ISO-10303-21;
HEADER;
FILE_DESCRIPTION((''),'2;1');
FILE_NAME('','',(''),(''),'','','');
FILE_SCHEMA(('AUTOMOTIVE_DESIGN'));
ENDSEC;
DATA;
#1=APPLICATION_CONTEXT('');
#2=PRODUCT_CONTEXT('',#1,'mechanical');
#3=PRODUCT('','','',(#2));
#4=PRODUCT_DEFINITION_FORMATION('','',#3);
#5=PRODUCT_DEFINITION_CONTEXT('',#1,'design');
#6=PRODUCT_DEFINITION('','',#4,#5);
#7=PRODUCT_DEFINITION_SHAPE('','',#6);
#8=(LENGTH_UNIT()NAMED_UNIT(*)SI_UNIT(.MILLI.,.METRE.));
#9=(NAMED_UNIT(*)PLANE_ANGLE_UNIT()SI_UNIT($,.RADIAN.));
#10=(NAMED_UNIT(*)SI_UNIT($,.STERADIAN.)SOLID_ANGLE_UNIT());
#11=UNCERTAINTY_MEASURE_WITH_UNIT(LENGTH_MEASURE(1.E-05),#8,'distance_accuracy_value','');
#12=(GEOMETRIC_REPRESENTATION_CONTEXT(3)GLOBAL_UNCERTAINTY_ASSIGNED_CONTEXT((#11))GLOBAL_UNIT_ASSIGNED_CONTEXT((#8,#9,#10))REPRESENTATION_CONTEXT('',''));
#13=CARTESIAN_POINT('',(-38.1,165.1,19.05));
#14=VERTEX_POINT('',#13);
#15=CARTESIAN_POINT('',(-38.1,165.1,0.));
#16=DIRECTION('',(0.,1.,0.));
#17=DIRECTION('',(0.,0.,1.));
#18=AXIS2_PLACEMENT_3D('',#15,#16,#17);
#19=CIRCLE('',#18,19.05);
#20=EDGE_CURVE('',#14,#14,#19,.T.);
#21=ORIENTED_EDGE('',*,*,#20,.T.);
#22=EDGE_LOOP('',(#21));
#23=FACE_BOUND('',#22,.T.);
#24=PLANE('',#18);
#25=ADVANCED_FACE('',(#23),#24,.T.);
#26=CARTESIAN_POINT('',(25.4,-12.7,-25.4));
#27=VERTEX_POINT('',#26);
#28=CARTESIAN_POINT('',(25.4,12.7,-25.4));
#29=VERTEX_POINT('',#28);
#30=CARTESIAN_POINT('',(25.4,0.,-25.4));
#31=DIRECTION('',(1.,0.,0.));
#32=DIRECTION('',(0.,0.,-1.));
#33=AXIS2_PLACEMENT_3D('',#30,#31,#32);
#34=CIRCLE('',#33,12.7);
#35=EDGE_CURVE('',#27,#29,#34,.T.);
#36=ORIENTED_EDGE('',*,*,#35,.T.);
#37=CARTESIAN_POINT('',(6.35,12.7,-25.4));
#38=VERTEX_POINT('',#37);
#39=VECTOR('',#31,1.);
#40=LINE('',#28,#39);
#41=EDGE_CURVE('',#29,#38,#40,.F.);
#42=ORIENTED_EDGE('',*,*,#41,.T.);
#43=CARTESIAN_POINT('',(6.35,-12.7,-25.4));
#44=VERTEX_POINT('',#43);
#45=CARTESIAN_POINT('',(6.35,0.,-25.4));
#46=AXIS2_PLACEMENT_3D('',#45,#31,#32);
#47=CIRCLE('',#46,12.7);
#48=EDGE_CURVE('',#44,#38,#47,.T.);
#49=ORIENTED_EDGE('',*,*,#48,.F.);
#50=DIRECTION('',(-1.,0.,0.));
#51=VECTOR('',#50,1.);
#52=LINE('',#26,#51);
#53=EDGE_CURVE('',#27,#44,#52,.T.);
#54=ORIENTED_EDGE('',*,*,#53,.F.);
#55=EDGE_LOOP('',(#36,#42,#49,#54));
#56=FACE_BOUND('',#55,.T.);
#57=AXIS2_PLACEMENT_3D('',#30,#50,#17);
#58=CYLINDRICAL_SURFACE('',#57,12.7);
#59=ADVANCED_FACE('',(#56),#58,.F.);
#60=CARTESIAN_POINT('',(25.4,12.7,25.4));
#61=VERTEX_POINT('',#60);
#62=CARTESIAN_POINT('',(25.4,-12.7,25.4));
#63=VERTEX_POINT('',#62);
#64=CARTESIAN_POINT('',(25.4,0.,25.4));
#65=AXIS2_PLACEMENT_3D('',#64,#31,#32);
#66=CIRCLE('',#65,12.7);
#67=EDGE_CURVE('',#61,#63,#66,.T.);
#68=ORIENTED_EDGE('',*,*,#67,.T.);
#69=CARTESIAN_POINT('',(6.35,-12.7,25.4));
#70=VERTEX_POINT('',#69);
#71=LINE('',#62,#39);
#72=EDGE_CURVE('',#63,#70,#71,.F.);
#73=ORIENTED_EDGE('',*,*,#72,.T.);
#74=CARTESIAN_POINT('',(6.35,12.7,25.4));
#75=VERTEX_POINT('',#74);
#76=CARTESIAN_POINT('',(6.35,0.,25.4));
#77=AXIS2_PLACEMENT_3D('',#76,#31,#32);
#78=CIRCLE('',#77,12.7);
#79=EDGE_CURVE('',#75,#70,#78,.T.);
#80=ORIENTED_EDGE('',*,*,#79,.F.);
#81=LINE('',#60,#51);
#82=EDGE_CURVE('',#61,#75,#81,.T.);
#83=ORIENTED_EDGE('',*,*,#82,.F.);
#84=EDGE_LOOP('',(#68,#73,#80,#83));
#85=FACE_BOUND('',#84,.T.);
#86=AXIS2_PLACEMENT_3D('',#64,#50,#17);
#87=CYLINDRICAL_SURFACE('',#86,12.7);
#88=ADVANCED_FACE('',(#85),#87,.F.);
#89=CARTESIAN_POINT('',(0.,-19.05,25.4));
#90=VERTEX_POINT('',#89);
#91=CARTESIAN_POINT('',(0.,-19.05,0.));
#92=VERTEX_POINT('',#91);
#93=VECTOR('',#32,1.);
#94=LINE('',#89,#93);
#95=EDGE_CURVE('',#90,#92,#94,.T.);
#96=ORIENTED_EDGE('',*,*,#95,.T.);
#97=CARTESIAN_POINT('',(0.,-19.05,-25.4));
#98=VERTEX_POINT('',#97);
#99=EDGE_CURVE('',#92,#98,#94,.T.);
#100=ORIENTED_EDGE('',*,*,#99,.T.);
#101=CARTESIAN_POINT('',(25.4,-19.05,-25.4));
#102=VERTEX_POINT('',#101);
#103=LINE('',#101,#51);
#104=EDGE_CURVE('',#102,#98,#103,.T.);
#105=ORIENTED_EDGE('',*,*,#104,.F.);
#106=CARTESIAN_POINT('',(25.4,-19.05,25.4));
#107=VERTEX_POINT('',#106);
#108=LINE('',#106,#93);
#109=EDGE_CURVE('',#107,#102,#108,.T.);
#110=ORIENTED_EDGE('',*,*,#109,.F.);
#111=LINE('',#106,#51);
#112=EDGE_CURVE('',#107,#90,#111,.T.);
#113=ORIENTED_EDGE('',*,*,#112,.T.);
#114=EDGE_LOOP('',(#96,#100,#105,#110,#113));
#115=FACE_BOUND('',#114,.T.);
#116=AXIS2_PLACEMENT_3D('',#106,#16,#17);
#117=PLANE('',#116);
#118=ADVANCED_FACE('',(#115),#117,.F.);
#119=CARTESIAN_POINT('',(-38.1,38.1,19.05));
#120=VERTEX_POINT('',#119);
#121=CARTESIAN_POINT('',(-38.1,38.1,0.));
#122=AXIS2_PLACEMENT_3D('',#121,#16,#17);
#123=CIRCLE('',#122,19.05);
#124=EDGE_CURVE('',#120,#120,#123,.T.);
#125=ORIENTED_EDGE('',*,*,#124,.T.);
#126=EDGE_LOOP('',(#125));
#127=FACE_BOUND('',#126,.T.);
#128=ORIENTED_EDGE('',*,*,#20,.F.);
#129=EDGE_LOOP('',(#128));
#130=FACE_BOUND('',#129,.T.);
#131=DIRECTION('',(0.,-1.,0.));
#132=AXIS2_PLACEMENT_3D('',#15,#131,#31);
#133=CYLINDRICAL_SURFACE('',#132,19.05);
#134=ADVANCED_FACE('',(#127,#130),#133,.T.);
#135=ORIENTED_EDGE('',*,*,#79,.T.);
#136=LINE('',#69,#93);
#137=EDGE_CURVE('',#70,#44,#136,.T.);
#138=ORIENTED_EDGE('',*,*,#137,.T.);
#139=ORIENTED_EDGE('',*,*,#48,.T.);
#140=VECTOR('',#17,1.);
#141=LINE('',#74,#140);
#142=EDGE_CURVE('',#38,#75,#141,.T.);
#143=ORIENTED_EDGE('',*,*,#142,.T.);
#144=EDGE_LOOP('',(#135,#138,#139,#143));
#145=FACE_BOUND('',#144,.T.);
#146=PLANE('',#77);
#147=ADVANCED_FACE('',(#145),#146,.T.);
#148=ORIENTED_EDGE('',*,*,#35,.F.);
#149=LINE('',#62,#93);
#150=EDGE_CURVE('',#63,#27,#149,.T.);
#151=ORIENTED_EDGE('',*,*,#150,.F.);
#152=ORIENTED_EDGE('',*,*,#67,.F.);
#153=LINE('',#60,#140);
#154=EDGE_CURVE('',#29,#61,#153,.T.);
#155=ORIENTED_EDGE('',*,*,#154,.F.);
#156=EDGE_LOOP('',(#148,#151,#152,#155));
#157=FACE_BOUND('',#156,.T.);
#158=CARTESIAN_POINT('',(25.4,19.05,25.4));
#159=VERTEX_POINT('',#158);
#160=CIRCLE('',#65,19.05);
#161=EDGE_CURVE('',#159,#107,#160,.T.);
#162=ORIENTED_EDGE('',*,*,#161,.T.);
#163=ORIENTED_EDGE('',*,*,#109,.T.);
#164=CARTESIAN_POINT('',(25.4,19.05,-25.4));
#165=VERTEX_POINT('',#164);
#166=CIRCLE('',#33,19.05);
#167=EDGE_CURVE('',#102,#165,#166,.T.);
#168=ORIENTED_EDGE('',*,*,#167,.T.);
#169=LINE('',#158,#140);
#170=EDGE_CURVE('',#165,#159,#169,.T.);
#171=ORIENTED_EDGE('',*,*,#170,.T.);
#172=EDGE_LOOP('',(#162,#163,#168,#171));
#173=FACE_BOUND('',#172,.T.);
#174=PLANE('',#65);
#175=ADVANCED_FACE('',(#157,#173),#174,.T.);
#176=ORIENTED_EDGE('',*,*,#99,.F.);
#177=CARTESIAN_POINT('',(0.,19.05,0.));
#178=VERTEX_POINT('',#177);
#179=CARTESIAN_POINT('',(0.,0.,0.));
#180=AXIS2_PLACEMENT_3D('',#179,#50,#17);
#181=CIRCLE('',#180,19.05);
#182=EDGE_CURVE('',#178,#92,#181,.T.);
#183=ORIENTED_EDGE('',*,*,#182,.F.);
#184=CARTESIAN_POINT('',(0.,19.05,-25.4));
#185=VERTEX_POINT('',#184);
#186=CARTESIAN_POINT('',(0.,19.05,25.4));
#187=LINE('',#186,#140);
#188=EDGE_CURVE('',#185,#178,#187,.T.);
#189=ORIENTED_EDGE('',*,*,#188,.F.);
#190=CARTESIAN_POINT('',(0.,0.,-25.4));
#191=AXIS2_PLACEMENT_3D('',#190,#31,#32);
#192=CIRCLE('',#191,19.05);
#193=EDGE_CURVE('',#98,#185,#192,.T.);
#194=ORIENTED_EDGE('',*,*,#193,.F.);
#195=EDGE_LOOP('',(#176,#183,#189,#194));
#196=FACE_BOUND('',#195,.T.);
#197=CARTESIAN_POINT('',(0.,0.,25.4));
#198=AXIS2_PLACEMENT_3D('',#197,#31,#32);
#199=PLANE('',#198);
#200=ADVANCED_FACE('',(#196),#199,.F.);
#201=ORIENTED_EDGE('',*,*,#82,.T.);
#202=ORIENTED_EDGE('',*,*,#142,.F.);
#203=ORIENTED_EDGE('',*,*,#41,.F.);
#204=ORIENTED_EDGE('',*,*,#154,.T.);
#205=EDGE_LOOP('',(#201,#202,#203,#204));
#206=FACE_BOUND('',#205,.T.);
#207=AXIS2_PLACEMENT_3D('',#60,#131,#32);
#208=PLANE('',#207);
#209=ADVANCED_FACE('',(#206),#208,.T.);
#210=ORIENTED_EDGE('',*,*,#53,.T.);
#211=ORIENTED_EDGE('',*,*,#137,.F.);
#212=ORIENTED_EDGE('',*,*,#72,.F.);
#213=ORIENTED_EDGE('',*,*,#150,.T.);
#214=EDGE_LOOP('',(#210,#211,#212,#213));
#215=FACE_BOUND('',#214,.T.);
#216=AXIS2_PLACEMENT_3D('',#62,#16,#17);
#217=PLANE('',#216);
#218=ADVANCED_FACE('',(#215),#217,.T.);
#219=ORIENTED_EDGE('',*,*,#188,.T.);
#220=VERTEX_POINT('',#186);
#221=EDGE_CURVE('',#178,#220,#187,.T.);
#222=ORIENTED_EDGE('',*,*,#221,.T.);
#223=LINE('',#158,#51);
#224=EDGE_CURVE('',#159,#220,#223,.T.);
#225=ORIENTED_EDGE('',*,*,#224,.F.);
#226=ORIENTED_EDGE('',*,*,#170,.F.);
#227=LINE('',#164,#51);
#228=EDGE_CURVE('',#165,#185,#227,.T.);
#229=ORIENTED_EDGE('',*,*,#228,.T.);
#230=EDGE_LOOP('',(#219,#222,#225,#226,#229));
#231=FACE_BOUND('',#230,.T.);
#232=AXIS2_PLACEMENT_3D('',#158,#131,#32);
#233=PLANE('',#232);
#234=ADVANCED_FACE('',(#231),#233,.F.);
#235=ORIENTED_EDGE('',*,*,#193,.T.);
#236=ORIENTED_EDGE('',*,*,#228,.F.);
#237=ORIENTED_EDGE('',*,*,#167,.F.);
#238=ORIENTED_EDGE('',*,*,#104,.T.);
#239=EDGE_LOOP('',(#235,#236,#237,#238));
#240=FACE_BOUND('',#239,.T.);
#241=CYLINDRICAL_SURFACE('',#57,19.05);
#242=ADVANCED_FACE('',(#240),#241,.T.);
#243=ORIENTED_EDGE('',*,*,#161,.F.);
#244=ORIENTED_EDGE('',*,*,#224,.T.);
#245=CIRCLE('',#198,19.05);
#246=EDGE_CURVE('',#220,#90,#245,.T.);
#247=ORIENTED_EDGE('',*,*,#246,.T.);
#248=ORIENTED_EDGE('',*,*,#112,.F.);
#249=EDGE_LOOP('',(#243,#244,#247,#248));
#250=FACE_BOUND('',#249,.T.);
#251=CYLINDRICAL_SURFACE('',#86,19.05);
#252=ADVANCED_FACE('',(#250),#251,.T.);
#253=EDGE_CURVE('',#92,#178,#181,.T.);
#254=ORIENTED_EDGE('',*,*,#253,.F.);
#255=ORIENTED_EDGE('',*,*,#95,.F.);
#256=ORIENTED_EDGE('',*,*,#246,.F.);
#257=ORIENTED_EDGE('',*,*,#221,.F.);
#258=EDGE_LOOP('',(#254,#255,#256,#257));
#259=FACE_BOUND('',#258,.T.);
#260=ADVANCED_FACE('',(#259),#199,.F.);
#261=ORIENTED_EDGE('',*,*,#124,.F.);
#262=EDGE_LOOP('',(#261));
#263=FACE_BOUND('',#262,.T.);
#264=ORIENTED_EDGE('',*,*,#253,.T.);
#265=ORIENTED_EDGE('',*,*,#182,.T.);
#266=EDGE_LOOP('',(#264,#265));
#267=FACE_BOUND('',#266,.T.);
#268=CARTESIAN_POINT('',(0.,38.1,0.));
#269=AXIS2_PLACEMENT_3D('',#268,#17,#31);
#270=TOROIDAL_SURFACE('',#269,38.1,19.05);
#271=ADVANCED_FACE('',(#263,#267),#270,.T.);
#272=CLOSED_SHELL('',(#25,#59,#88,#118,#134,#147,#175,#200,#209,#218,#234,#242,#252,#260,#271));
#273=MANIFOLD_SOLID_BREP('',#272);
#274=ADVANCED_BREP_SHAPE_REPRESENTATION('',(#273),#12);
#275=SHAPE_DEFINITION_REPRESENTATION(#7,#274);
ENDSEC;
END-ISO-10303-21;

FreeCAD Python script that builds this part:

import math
import FreeCAD as App
import Part
import Sketcher
from FreeCAD import Vector
Q = App.Units.Quantity


def faces_at(feature, points):
    """Names of the faces that lie closest to the given points."""
    faces = feature.Shape.Faces
    near = lambda p: min(range(len(faces)), key=lambda i: faces[i].distToShape(Part.Vertex(*p))[0])
    return sorted({f"Face{near(p) + 1}" for p in points})

doc = App.newDocument("Part")
body = doc.addObject("PartDesign::Body", "Body")

# Sketch on YZ plane
sketch1 = body.newObject("Sketcher::SketchObject", "Sketch")
sketch1.AttachmentSupport = (doc.getObject("YZ_Plane"), [""])
sketch1.MapMode = "FlatFace"
sketch1.addGeometry([
    Part.LineSegment(Vector(19, -25, 0), Vector(19, 25, 0)),
    Part.ArcOfCircle(Part.Circle(Vector(0, 25, 0), Vector(0, 0, 1), 19), math.radians(0), math.radians(180)),
    Part.LineSegment(Vector(-19, 25, 0), Vector(-19, -25, 0)),
    Part.ArcOfCircle(Part.Circle(Vector(0, -25, 0), Vector(0, 0, 1), 19), math.radians(180), math.radians(360)),
], False)
sketch1.addConstraint([
    Sketcher.Constraint("Tangent", 0, 2, 1, 1),
    Sketcher.Constraint("Tangent", 1, 2, 2, 1),
    Sketcher.Constraint("Tangent", 2, 2, 3, 1),
    Sketcher.Constraint("Tangent", 3, 2, 0, 1),
    Sketcher.Constraint("Vertical", 0),
    Sketcher.Constraint("Vertical", 2),
    Sketcher.Constraint("Symmetric", 1, 3, 3, 3, -1, 1),
    Sketcher.Constraint("DistanceY", 0, 1, 0, 2, Q("2 in")),
    Sketcher.Constraint("Radius", 1, Q("0.75 in")),
])
pad1 = body.newObject("PartDesign::Pad", "Pad")
pad1.Profile = sketch1
pad1.Length = Q("1 in")
doc.recompute()

thickness = body.newObject("PartDesign::Thickness", "Thickness")
thickness.Base = (pad1, faces_at(pad1, [(25.4, 0, 0)]))
thickness.Value = Q("0.25 in")
thickness.Reversed = True
thickness.Join = "Intersection"

# Sketch on YZ plane
sketch2 = body.newObject("Sketcher::SketchObject", "Sketch001")
sketch2.AttachmentSupport = (doc.getObject("YZ_Plane"), [""])
sketch2.MapMode = "FlatFace"
sketch2.addGeometry(Part.Circle(Vector(0, 0, 0), Vector(0, 0, 1), 19), False)
sketch2.addConstraint([
    Sketcher.Constraint("Coincident", 0, 3, -1, 1),
    Sketcher.Constraint("Diameter", 0, Q("1.5 in")),
])

# Sketch on XY plane
sketch3 = body.newObject("Sketcher::SketchObject", "Sketch002")
sketch3.AttachmentSupport = (doc.getObject("XY_Plane"), [""])
sketch3.MapMode = "FlatFace"
sketch3.addGeometry([
    Part.LineSegment(Vector(-38, 165, 0), Vector(-38, 38, 0)),
    Part.ArcOfCircle(Part.Circle(Vector(0, 38, 0), Vector(0, 0, 1), 38), math.radians(-180), math.radians(-90)),
], False)
sketch3.addConstraint([
    Sketcher.Constraint("Tangent", 0, 2, 1, 1),
    Sketcher.Constraint("Vertical", 0),
    Sketcher.Constraint("Coincident", 1, 2, -1, 1),
    Sketcher.Constraint("PointOnObject", 1, 3, -2),
    Sketcher.Constraint("Radius", 1, Q("1.5 in")),
    Sketcher.Constraint("DistanceY", 0, 2, 0, 1, Q("5 in")),
])
doc.recompute()

additivepipe = body.newObject("PartDesign::AdditivePipe", "AdditivePipe")
additivepipe.Profile = sketch2
additivepipe.Spine = (sketch3, ["Edge1", "Edge2"])

doc.recompute()
